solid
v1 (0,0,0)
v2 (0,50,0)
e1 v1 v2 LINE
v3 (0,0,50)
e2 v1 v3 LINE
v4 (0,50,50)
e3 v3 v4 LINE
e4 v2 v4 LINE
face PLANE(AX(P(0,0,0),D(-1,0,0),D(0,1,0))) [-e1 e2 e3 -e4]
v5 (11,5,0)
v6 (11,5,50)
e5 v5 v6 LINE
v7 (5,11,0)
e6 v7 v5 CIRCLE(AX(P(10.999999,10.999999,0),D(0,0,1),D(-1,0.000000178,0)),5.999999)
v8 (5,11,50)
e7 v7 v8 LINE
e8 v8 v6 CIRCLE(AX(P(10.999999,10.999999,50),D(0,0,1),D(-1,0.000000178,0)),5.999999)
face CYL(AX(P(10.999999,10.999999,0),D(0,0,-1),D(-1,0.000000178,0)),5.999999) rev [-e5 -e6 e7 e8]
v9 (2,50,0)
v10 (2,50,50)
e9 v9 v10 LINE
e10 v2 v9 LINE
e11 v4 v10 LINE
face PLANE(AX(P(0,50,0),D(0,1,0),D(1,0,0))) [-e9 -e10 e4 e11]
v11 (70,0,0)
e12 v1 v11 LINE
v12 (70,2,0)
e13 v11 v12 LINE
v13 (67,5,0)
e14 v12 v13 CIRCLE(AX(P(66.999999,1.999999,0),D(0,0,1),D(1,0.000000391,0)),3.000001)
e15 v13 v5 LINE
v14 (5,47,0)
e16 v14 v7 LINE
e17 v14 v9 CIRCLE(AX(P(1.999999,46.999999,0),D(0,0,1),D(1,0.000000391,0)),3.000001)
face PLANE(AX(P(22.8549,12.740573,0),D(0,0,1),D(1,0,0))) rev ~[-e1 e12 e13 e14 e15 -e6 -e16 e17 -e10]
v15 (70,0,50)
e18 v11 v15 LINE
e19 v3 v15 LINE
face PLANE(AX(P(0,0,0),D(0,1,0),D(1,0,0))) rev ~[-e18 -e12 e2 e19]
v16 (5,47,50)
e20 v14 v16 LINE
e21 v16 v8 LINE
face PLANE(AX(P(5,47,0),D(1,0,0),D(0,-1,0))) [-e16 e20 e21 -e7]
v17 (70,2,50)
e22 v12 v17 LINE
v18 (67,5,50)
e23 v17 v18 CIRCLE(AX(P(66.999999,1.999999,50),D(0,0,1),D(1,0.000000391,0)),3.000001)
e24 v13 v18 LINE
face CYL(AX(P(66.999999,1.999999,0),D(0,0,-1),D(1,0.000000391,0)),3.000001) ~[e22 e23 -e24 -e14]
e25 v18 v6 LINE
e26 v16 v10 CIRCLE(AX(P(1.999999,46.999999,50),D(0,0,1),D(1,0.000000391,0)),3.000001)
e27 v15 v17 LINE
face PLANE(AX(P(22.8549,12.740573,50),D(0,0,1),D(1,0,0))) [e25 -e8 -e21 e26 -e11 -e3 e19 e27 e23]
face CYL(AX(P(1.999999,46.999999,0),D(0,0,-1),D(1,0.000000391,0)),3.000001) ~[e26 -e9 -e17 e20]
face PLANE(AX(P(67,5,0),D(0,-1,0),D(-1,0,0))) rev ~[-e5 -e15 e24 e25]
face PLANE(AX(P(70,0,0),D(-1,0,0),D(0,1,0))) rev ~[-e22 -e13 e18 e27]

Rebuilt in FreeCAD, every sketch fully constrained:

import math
import FreeCAD as App
import Part
import Sketcher

V = App.Vector

doc = App.newDocument("Part")
body = doc.addObject("PartDesign::Body", "Body")

sketch1 = doc.addObject("Sketcher::SketchObject", "Sketch")
body.addObject(sketch1)
sketch1.AttachmentSupport = (doc.XY_Plane, [""])
sketch1.MapMode = "FlatFace"
sketch1.addGeometry(Part.LineSegment(V(0, 0, 0), V(70, 0, 0)), False)
sketch1.addGeometry(Part.LineSegment(V(70, 0, 0), V(70, 2, 0)), False)
sketch1.addGeometry(Part.ArcOfCircle(Part.Circle(V(67, 2, 0), V(0, 0, 1), 3), math.radians(0), math.radians(90)), False)
sketch1.addGeometry(Part.LineSegment(V(67, 5, 0), V(11, 5, 0)), False)
sketch1.addGeometry(Part.ArcOfCircle(Part.Circle(V(11, 11, 0), V(0, 0, 1), 6), math.radians(180), math.radians(270)), False)
sketch1.addGeometry(Part.LineSegment(V(5, 11, 0), V(5, 47, 0)), False)
sketch1.addGeometry(Part.ArcOfCircle(Part.Circle(V(2, 47, 0), V(0, 0, 1), 3), math.radians(0), math.radians(90)), False)
sketch1.addGeometry(Part.LineSegment(V(2, 50, 0), V(0, 50, 0)), False)
sketch1.addGeometry(Part.LineSegment(V(0, 50, 0), V(0, 0, 0)), False)
sketch1.addConstraint(Sketcher.Constraint("Coincident", 0, 2, 1, 1))
sketch1.addConstraint(Sketcher.Constraint("Tangent", 1, 2, 2, 1))
sketch1.addConstraint(Sketcher.Constraint("Tangent", 2, 2, 3, 1))
sketch1.addConstraint(Sketcher.Constraint("Tangent", 3, 2, 4, 2))
sketch1.addConstraint(Sketcher.Constraint("Tangent", 4, 1, 5, 1))
sketch1.addConstraint(Sketcher.Constraint("Tangent", 5, 2, 6, 1))
sketch1.addConstraint(Sketcher.Constraint("Tangent", 6, 2, 7, 1))
sketch1.addConstraint(Sketcher.Constraint("Coincident", 7, 2, 8, 1))
sketch1.addConstraint(Sketcher.Constraint("Coincident", 8, 2, 0, 1))
sketch1.addConstraint(Sketcher.Constraint("Horizontal", 0))
sketch1.addConstraint(Sketcher.Constraint("Vertical", 1))
sketch1.addConstraint(Sketcher.Constraint("Horizontal", 3))
sketch1.addConstraint(Sketcher.Constraint("Vertical", 5))
sketch1.addConstraint(Sketcher.Constraint("Horizontal", 7))
sketch1.addConstraint(Sketcher.Constraint("Vertical", 8))
sketch1.addConstraint(Sketcher.Constraint("Coincident", 8, 2, -1, 1))
sketch1.addConstraint(Sketcher.Constraint("Equal", 2, 6))
sketch1.addConstraint(Sketcher.Constraint("Equal", 7, 1))
sketch1.addConstraint(Sketcher.Constraint("Radius", 2, 3.000001))
sketch1.addConstraint(Sketcher.Constraint("Radius", 4, 5.999999))
sketch1.addConstraint(Sketcher.Constraint("DistanceX", 0, 1, 0, 2, 70.0))
sketch1.addConstraint(Sketcher.Constraint("DistanceX", 3, 2, 3, 1, 56.0))
sketch1.addConstraint(Sketcher.Constraint("DistanceY", 5, 1, 5, 2, 36.0))
pad1 = doc.addObject("PartDesign::Pad", "Pad")
body.addObject(pad1)
pad1.Profile = sketch1
pad1.Length = 50

doc.recompute()
